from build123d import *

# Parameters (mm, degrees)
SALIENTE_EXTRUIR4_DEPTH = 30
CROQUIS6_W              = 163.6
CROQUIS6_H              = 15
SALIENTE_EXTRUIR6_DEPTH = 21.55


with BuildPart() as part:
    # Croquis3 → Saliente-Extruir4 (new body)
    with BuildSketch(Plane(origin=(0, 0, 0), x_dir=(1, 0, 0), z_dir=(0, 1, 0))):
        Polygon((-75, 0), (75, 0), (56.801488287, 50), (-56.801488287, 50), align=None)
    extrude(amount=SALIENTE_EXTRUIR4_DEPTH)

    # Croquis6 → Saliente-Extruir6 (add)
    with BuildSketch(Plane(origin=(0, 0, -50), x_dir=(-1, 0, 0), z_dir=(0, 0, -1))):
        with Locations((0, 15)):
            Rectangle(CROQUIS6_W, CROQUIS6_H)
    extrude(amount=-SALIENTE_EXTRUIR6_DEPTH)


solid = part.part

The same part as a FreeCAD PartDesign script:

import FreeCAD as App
import Part
import Sketcher
Q = App.Units.Quantity


def add_polygon(sketch, points):
    """Adds a closed chain of lines whose ends are joined by coincident constraints."""
    first, n = sketch.GeometryCount, len(points)
    for a, b in zip(points, points[1:] + points[:1]):
        sketch.addGeometry(Part.LineSegment(App.Vector(*a, 0), App.Vector(*b, 0)), False)
    for i in range(n):
        sketch.addConstraint(Sketcher.Constraint("Coincident", first + i, 2, first + (i + 1) % n, 1))

doc = App.newDocument("Part")
params = doc.addObject("Spreadsheet::Sheet", "Params")
for row, (alias, value) in enumerate([
    ("sketch1_width", "150 mm"),
    ("pad1_length", "30 mm"),
    ("sketch2_height", "15 mm"),
    ("sketch2_width", "163.6 mm"),
    ("pad2_length", "21.55 mm"),
], start=1):
    params.set(f"A{row}", alias)
    params.set(f"B{row}", "=" + value)
    params.setAlias(f"B{row}", alias)

body = doc.addObject("PartDesign::Body", "Body")

sketch1 = doc.addObject("Sketcher::SketchObject", "Sketch")
body.addObject(sketch1)
sketch1.AttachmentSupport = (doc.XZ_Plane, [""])
sketch1.MapMode = "FlatFace"
add_polygon(sketch1, [(-75, 0), (75, 0), (56.801488, -50), (-56.801488, -50)])
sketch1.addConstraint(Sketcher.Constraint("Horizontal", 0))
sketch1.addConstraint(Sketcher.Constraint("Horizontal", 2))
sketch1.addConstraint(Sketcher.Constraint("Symmetric", 0, 2, 3, 2, -1, 1))
sketch1.addConstraint(Sketcher.Constraint("Equal", 1, 3))
sketch1.addConstraint(Sketcher.Constraint("DistanceX", 0, 1, 0, 2, 150.0))
sketch1.addConstraint(Sketcher.Constraint("Angle", 1, Q("-110 deg")))
sketch1.addConstraint(Sketcher.Constraint("DistanceY", 1, 2, -1, 1, 50.0))
sketch1.setExpression("Constraints[8]", "Params.sketch1_width")
pad1 = doc.addObject("PartDesign::Pad", "Pad")
body.addObject(pad1)
pad1.Profile = sketch1
pad1.setExpression("Length", "Params.pad1_length")
pad1.Reversed = True

sketch2 = doc.addObject("Sketcher::SketchObject", "Sketch001")
body.addObject(sketch2)
sketch2.AttachmentSupport = (doc.XY_Plane, [""])
sketch2.MapMode = "FlatFace"
sketch2.AttachmentOffset = App.Placement(App.Vector(0, 0, -50), App.Rotation())
add_polygon(sketch2, [(81.8, 22.5), (81.8, 7.5), (-81.8, 7.5), (-81.8, 22.5)])
sketch2.addConstraint(Sketcher.Constraint("Vertical", 0))
sketch2.addConstraint(Sketcher.Constraint("Horizontal", 1))
sketch2.addConstraint(Sketcher.Constraint("Vertical", 2))
sketch2.addConstraint(Sketcher.Constraint("Horizontal", 3))
sketch2.addConstraint(Sketcher.Constraint("DistanceY", 0, 2, 0, 1, 15.0))
sketch2.addConstraint(Sketcher.Constraint("DistanceX", 1, 2, 1, 1, 163.6))
sketch2.addConstraint(Sketcher.Constraint("DistanceX", -1, 1, 0, 2, 81.8))
sketch2.addConstraint(Sketcher.Constraint("DistanceY", -1, 1, 0, 2, 7.5))
sketch2.setExpression("Constraints[8]", "Params.sketch2_height")
sketch2.setExpression("Constraints[9]", "Params.sketch2_width")
pad2 = doc.addObject("PartDesign::Pad", "Pad001")
body.addObject(pad2)
pad2.Profile = sketch2
pad2.setExpression("Length", "Params.pad2_length")

doc.recompute()
